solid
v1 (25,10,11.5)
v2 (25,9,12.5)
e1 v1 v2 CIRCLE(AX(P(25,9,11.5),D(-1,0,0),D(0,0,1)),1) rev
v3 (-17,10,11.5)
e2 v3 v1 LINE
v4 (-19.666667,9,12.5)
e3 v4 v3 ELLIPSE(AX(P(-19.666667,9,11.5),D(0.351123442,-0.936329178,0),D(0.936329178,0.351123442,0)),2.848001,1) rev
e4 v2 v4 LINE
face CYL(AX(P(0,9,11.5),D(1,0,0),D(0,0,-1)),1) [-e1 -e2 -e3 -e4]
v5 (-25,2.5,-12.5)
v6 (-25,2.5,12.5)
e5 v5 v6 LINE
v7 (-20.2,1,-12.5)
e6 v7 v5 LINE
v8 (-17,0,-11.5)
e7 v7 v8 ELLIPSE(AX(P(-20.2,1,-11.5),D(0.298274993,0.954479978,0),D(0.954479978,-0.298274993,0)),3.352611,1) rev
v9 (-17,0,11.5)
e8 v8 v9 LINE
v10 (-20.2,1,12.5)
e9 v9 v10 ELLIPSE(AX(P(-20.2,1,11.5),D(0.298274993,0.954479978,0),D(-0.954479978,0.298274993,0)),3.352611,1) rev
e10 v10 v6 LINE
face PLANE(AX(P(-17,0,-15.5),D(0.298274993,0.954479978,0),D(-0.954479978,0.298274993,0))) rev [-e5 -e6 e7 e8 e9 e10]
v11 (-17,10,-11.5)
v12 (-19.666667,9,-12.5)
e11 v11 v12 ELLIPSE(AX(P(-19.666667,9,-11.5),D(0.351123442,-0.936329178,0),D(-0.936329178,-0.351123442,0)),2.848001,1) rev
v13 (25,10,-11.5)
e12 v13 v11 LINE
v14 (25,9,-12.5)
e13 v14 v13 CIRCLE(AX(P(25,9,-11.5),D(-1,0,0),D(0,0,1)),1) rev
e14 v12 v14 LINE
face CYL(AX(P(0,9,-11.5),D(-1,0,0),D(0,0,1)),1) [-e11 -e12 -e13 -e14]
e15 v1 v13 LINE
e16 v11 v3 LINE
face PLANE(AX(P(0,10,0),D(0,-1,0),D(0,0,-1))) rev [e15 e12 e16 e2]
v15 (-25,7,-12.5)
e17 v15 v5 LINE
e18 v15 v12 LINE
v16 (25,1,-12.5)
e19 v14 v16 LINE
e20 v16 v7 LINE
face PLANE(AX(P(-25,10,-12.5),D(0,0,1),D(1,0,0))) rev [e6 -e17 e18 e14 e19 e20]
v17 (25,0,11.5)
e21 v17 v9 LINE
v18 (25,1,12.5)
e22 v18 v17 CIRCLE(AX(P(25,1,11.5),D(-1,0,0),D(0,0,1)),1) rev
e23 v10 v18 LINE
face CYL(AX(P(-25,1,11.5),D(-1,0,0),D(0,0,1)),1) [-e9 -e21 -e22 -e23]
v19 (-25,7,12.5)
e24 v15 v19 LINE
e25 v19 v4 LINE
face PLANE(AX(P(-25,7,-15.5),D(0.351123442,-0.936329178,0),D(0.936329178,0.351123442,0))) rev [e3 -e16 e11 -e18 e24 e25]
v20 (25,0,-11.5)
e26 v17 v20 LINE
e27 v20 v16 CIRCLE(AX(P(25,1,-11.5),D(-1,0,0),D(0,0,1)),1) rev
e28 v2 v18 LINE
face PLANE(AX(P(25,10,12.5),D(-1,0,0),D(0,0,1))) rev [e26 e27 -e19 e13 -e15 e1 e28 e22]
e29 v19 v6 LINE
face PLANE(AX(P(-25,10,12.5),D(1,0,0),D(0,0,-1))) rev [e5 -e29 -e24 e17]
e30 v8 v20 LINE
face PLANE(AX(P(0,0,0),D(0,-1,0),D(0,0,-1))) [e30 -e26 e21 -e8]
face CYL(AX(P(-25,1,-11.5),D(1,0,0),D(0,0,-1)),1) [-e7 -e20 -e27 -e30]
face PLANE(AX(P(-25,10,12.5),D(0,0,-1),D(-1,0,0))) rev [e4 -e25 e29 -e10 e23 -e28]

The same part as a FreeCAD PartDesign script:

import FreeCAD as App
import Part
import Sketcher

V = App.Vector
Q = App.Units.Quantity


def edges_at(feature, points):
    """Names of the edges that pass closest to the given points."""
    edges = feature.Shape.Edges
    near = lambda p: min(range(len(edges)), key=lambda i: edges[i].distToShape(Part.Vertex(*p))[0])
    return sorted({f"Edge{near(p) + 1}" for p in points})

doc = App.newDocument("Part")
params = doc.addObject("Spreadsheet::Sheet", "Params")
for row, (alias, value) in enumerate([
    ("sketch1_width", "50 mm"),
    ("sketch1_height", "25 mm"),
    ("pad1_length", "10 mm"),
    ("fillet_radius", "1 mm"),
    ("sketch2_width", "10 mm"),
    ("sketch2_height", "2 mm"),
    ("sketch2_height2", "14 mm"),
    ("sketch2_height3", "4.5 mm"),
    ("pocket1_length", "28 mm"),
], start=1):
    params.set(f"A{row}", alias)
    params.set(f"B{row}", "=" + value)
    params.setAlias(f"B{row}", alias)

body = doc.addObject("PartDesign::Body", "Body")

# Sketch on XZ plane
sketch1 = doc.addObject("Sketcher::SketchObject", "Sketch")
body.addObject(sketch1)
sketch1.AttachmentSupport = (doc.XZ_Plane, [""])
sketch1.MapMode = "FlatFace"
sketch1.addGeometry([
    Part.LineSegment(V(-25, -12, 0), V(-25, 12, 0)),
    Part.LineSegment(V(-25, 12, 0), V(25, 12, 0)),
    Part.LineSegment(V(25, 12, 0), V(25, -12, 0)),
    Part.LineSegment(V(25, -12, 0), V(-25, -12, 0)),
], False)
sketch1.addConstraint([
    Sketcher.Constraint("Coincident", 0, 2, 1, 1),
    Sketcher.Constraint("Coincident", 1, 2, 2, 1),
    Sketcher.Constraint("Coincident", 2, 2, 3, 1),
    Sketcher.Constraint("Coincident", 3, 2, 0, 1),
    Sketcher.Constraint("Vertical", 0),
    Sketcher.Constraint("Horizontal", 1),
    Sketcher.Constraint("Vertical", 2),
    Sketcher.Constraint("Horizontal", 3),
    Sketcher.Constraint("Symmetric", 0, 2, 2, 2, -1, 1),
    Sketcher.Constraint("DistanceX", 1, 1, 1, 2, Q("50 mm")),
    Sketcher.Constraint("DistanceY", 0, 1, 0, 2, Q("25 mm")),
])
sketch1.setExpression("Constraints[9]", "Params.sketch1_width")
sketch1.setExpression("Constraints[10]", "Params.sketch1_height")
pad1 = doc.addObject("PartDesign::Pad", "Pad")
body.addObject(pad1)
pad1.Profile = sketch1
pad1.setExpression("Length", "Params.pad1_length")
pad1.Reversed = True
doc.recompute()

fillet = doc.addObject("PartDesign::Fillet", "Fillet")
body.addObject(fillet)
fillet.Base = (pad1, edges_at(pad1, [
    (0, 10, 12.5),
    (0, 0, 12.5),
    (0, 0, -12.5),
    (0, 10, -12.5),
]))
fillet.setExpression("Radius", "Params.fillet_radius")

# Sketch on XY plane
sketch2 = doc.addObject("Sketcher::SketchObject", "Sketch001")
body.addObject(sketch2)
sketch2.AttachmentSupport = (doc.XY_Plane, [""])
sketch2.MapMode = "FlatFace"
sketch2.AttachmentOffset = App.Placement(V(0, 0, 12.5), App.Rotation())
sketch2.addGeometry([
    Part.LineSegment(V(-25, 7, 0), V(-17, 10, 0)),  # 0
    Part.LineSegment(V(-17, 10, 0), V(-17, 12, 0)),  # 1
    Part.LineSegment(V(-17, 12, 0), V(-27, 12, 0)),  # 2
    Part.LineSegment(V(-27, 12, 0), V(-27, -2, 0)),  # 3
    Part.LineSegment(V(-27, -2, 0), V(-17, -2, 0)),  # 4
    Part.LineSegment(V(-17, -2, 0), V(-17, 0, 0)),  # 5
    Part.LineSegment(V(-17, 0, 0), V(-25, 2.5, 0)),  # 6
    Part.LineSegment(V(-25, 2.5, 0), V(-25, 7, 0)),  # 7
], False)
sketch2.addConstraint([
    Sketcher.Constraint("Coincident", 0, 2, 1, 1),
    Sketcher.Constraint("Coincident", 1, 2, 2, 1),
    Sketcher.Constraint("Coincident", 2, 2, 3, 1),
    Sketcher.Constraint("Coincident", 3, 2, 4, 1),
    Sketcher.Constraint("Coincident", 4, 2, 5, 1),
    Sketcher.Constraint("Coincident", 5, 2, 6, 1),
    Sketcher.Constraint("Coincident", 6, 2, 7, 1),
    Sketcher.Constraint("Coincident", 7, 2, 0, 1),
    Sketcher.Constraint("Vertical", 1),
    Sketcher.Constraint("Horizontal", 2),
    Sketcher.Constraint("Vertical", 3),
    Sketcher.Constraint("Horizontal", 4),
    Sketcher.Constraint("Vertical", 5),
    Sketcher.Constraint("Vertical", 7),
    Sketcher.Constraint("PointOnObject", 5, 2, -1),
    Sketcher.Constraint("Vertical", 1, 2, 4, 2),
    Sketcher.Constraint("Equal", 1, 5),
    Sketcher.Constraint("DistanceX", 2, 2, 2, 1, Q("10 mm")),
    Sketcher.Constraint("DistanceY", 1, 1, 1, 2, Q("2 mm")),
    Sketcher.Constraint("DistanceY", 3, 2, 3, 1, Q("14 mm")),
    Sketcher.Constraint("DistanceY", 7, 1, 7, 2, Q("4.5 mm")),
    Sketcher.Constraint("DistanceX", 0, 2, -1, 1, Q("17 mm")),
    Sketcher.Constraint("DistanceX", 6, 2, -1, 1, Q("25 mm")),
    Sketcher.Constraint("DistanceY", -1, 1, 7, 2, Q("7 mm")),
])
sketch2.setExpression("Constraints[17]", "Params.sketch2_width")
sketch2.setExpression("Constraints[18]", "Params.sketch2_height")
sketch2.setExpression("Constraints[19]", "Params.sketch2_height2")
sketch2.setExpression("Constraints[20]", "Params.sketch2_height3")
pocket1 = doc.addObject("PartDesign::Pocket", "Pocket")
body.addObject(pocket1)
pocket1.Profile = sketch2
pocket1.setExpression("Length", "Params.pocket1_length")

doc.recompute()
